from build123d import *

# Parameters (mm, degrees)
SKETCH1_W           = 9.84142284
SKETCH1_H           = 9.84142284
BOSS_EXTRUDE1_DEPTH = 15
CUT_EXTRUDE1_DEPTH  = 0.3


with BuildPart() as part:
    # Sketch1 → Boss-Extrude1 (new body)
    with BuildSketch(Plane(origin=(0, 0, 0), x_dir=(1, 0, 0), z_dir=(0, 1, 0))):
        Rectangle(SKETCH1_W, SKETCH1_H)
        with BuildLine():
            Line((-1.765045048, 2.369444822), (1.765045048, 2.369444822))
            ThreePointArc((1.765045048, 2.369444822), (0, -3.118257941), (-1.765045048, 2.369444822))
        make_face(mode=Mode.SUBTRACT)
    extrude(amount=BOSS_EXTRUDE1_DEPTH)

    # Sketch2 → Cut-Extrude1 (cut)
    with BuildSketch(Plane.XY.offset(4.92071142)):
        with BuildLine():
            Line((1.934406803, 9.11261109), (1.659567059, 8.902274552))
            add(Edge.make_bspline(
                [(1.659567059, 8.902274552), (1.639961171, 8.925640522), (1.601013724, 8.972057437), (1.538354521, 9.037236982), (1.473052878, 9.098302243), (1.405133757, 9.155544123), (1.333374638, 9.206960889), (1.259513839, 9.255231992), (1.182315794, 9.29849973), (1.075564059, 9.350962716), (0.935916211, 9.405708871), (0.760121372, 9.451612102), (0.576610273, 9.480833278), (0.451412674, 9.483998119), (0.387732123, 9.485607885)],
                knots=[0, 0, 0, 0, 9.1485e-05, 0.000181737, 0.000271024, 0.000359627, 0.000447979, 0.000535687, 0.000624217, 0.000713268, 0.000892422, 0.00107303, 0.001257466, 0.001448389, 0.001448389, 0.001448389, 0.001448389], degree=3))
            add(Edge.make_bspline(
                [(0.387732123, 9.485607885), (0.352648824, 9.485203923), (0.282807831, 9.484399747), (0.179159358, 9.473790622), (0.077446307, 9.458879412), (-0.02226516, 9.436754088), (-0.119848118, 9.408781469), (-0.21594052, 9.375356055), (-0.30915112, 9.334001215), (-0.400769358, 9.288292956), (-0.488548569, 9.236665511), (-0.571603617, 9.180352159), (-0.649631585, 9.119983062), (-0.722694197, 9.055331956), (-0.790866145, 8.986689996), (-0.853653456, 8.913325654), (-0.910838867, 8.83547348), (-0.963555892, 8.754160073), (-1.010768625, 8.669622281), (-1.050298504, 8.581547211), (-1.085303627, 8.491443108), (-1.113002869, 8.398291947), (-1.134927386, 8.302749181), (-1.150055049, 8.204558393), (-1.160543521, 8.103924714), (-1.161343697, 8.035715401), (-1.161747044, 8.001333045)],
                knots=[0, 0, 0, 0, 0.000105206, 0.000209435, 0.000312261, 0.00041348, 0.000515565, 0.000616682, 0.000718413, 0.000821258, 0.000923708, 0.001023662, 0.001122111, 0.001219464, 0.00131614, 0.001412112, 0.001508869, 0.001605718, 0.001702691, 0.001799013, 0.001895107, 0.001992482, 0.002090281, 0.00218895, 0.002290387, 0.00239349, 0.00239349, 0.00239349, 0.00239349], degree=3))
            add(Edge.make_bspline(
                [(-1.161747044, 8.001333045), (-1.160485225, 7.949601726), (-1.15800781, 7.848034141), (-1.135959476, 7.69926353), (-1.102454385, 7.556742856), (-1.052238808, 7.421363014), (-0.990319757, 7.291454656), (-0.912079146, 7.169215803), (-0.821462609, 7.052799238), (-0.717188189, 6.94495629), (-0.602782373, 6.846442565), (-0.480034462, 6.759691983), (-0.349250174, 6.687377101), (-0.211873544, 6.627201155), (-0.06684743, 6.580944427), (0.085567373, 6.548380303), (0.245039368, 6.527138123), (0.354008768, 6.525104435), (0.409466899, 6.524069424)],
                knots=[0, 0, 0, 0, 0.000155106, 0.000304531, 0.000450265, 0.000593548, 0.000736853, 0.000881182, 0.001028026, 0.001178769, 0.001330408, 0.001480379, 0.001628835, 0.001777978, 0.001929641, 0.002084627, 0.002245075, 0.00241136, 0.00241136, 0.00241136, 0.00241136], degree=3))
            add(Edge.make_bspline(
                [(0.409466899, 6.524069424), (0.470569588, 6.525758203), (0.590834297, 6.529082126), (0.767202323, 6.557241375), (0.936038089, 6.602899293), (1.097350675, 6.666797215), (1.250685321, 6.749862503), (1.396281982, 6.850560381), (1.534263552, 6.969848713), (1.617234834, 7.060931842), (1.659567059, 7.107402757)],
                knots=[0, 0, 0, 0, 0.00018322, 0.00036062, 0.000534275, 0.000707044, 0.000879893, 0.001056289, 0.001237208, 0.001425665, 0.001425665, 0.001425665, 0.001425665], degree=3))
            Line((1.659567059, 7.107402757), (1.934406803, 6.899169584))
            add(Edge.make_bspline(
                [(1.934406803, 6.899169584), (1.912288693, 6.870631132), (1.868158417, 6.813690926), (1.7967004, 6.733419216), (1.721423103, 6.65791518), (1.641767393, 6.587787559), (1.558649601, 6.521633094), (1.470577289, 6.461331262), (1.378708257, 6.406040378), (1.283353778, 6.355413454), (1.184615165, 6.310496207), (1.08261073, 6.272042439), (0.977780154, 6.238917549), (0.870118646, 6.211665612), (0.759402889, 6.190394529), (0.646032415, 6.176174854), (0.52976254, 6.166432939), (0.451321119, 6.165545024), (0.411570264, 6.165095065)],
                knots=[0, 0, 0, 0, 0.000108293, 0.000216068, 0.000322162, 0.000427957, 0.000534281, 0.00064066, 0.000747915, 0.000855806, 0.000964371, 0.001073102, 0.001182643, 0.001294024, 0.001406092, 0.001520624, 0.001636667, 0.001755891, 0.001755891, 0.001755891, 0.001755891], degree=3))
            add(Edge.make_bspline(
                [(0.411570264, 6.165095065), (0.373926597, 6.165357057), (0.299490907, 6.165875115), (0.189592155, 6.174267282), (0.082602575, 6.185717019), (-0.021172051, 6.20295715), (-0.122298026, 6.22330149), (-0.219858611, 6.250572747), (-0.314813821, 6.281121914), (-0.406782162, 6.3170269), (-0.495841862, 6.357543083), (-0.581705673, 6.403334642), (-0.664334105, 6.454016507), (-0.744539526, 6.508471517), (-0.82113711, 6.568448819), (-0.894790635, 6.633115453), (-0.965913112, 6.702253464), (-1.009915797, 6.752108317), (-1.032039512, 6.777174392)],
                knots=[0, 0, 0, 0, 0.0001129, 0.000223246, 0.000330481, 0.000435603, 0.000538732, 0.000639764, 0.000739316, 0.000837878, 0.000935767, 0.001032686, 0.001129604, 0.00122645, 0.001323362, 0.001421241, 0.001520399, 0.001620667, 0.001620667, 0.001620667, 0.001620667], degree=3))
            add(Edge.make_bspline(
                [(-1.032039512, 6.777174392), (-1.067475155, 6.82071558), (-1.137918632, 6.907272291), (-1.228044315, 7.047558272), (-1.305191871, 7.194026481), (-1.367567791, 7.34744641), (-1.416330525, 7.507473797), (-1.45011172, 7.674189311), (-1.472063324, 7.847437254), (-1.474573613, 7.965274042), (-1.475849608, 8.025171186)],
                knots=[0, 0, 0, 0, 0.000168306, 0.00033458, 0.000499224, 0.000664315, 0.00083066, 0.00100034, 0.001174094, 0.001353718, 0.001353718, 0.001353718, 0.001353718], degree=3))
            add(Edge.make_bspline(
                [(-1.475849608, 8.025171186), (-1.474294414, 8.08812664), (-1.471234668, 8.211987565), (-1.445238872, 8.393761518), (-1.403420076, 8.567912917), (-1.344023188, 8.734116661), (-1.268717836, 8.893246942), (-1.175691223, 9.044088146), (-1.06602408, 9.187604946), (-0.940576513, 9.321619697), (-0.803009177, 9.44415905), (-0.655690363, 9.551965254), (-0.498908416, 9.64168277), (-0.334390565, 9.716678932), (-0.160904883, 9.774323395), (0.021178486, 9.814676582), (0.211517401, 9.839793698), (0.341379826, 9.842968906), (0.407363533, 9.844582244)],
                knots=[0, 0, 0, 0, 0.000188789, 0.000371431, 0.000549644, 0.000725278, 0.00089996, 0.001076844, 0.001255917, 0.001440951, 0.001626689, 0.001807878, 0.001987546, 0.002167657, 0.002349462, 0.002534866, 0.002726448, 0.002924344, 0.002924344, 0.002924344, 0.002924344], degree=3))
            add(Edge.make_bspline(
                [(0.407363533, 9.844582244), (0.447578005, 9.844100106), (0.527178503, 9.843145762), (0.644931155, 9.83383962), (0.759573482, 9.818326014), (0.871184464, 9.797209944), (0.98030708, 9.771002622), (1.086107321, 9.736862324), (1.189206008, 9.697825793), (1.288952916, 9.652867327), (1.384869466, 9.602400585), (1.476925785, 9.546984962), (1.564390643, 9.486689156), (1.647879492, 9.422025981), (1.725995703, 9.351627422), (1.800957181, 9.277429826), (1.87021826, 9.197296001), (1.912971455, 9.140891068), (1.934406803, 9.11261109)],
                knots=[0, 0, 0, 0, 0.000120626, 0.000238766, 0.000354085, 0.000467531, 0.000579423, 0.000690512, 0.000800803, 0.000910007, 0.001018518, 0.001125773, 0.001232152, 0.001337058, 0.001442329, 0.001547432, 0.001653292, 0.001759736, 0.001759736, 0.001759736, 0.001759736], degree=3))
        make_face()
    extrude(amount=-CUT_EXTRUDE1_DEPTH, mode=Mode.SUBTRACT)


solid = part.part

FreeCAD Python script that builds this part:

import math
import FreeCAD as App
import Part
import Sketcher

V = App.Vector
Q = App.Units.Quantity


def add_polygon(sketch, points):
    """Adds a closed chain of lines whose ends are joined by coincident constraints."""
    first, n = sketch.GeometryCount, len(points)
    for a, b in zip(points, points[1:] + points[:1]):
        sketch.addGeometry(Part.LineSegment(App.Vector(*a, 0), App.Vector(*b, 0)), False)
    for i in range(n):
        sketch.addConstraint(Sketcher.Constraint("Coincident", first + i, 2, first + (i + 1) % n, 1))

doc = App.newDocument("Part")
body = doc.addObject("PartDesign::Body", "Body")

# Sketch on XZ plane
sketch1 = body.newObject("Sketcher::SketchObject", "Sketch")
sketch1.AttachmentSupport = (doc.getObject("XZ_Plane"), [""])
sketch1.MapMode = "FlatFace"
add_polygon(sketch1, [(-4.9, -4.9), (-4.9, 4.9), (4.9, 4.9), (4.9, -4.9)])  # lines 0-3
sketch1.addGeometry(Part.ArcOfCircle(Part.Circle(V(0, 0.1, 0), V(0, 0, 1), 3), math.radians(-54), math.radians(234)), False)  # 4
sketch1.addGeometry(Part.LineSegment(V(-1.8, -2.4, 0), V(1.8, -2.4, 0)), False)  # 5
sketch1.addConstraint([
    Sketcher.Constraint("Coincident", 4, 1, 5, 2),
    Sketcher.Constraint("Coincident", 5, 1, 4, 2),
    Sketcher.Constraint("Vertical", 0),
    Sketcher.Constraint("Horizontal", 1),
    Sketcher.Constraint("Vertical", 2),
    Sketcher.Constraint("Horizontal", 3),
    Sketcher.Constraint("Horizontal", 5),
    Sketcher.Constraint("Symmetric", 0, 2, 2, 2, -1, 1),
    Sketcher.Constraint("PointOnObject", 4, 3, -2),
    Sketcher.Constraint("Equal", 3, 0),
    Sketcher.Constraint("DistanceY", 4, 1, 4, 3, Q("2.46 mm")),
    Sketcher.Constraint("Radius", 4, Q("3.027703 mm")),
    Sketcher.Constraint("DistanceX", 1, 1, 1, 2, Q("9.841423 mm")),
    Sketcher.Constraint("DistanceY", -1, 1, 4, 3, Q("0.090555 mm")),
])
pad1 = body.newObject("PartDesign::Pad", "Pad")
pad1.Profile = sketch1
pad1.Length = 15
pad1.Reversed = True

# Sketch on XY plane
sketch2 = body.newObject("Sketcher::SketchObject", "Sketch001")
sketch2.AttachmentSupport = (doc.getObject("XY_Plane"), [""])
sketch2.MapMode = "FlatFace"
sketch2.AttachmentOffset = App.Placement(V(0, 0, 4.920711), App.Rotation())
sketch2.addGeometry([
    Part.LineSegment(V(1.659567, 8.902275, 0), V(1.934407, 9.112611, 0)),  # 0
    Part.BSplineCurve([V(0.407364, 9.844582, 0), V(0.447578, 9.8441, 0), V(0.527179, 9.843146, 0), V(0.644931, 9.83384, 0), V(0.759573, 9.818326, 0), V(0.871184, 9.79721, 0), V(0.980307, 9.771003, 0), V(1.086107, 9.736862, 0), V(1.189206, 9.697826, 0), V(1.288953, 9.652867, 0), V(1.384869, 9.602401, 0), V(1.476926, 9.546985, 0), V(1.564391, 9.486689, 0), V(1.647879, 9.422026, 0), V(1.725996, 9.351627, 0), V(1.800957, 9.27743, 0), V(1.870218, 9.197296, 0), V(1.912971, 9.140891, 0), V(1.934407, 9.112611, 0)], [4, 1, 1, 1, 1, 1, 1, 1, 1, 1, 1, 1, 1, 1, 1, 1, 4], [0, 0.000120626, 0.000238766, 0.000354085, 0.000467531, 0.000579423, 0.000690512, 0.000800803, 0.000910007, 0.001018518, 0.001125773, 0.001232152, 0.001337058, 0.001442329, 0.001547432, 0.001653292, 0.001759736], False, 3, [1, 1, 1, 1, 1, 1, 1, 1, 1, 1, 1, 1, 1, 1, 1, 1, 1, 1, 1], False),  # 1
    Part.BSplineCurve([V(-1.47585, 8.025171, 0), V(-1.474294, 8.088127, 0), V(-1.471235, 8.211988, 0), V(-1.445239, 8.393762, 0), V(-1.40342, 8.567913, 0), V(-1.344023, 8.734117, 0), V(-1.268718, 8.893247, 0), V(-1.175691, 9.044088, 0), V(-1.066024, 9.187605, 0), V(-0.940577, 9.32162, 0), V(-0.803009, 9.444159, 0), V(-0.65569, 9.551965, 0), V(-0.498908, 9.641683, 0), V(-0.334391, 9.716679, 0), V(-0.160905, 9.774323, 0), V(0.021178, 9.814677, 0), V(0.211517, 9.839794, 0), V(0.34138, 9.842969, 0), V(0.407364, 9.844582, 0)], [4, 1, 1, 1, 1, 1, 1, 1, 1, 1, 1, 1, 1, 1, 1, 1, 4], [0, 0.000188789, 0.000371431, 0.000549644, 0.000725278, 0.00089996, 0.001076844, 0.001255917, 0.001440951, 0.001626689, 0.001807878, 0.001987546, 0.002167657, 0.002349462, 0.002534866, 0.002726448, 0.002924344], False, 3, [1, 1, 1, 1, 1, 1, 1, 1, 1, 1, 1, 1, 1, 1, 1, 1, 1, 1, 1], False),  # 2
    Part.BSplineCurve([V(-1.03204, 6.777174, 0), V(-1.067475, 6.820716, 0), V(-1.137919, 6.907272, 0), V(-1.228044, 7.047558, 0), V(-1.305192, 7.194026, 0), V(-1.367568, 7.347446, 0), V(-1.416331, 7.507474, 0), V(-1.450112, 7.674189, 0), V(-1.472063, 7.847437, 0), V(-1.474574, 7.965274, 0), V(-1.47585, 8.025171, 0)], [4, 1, 1, 1, 1, 1, 1, 1, 4], [0, 0.000168306, 0.00033458, 0.000499224, 0.000664315, 0.00083066, 0.00100034, 0.001174094, 0.001353718], False, 3, [1, 1, 1, 1, 1, 1, 1, 1, 1, 1, 1], False),  # 3
    Part.BSplineCurve([V(0.41157, 6.165095, 0), V(0.373927, 6.165357, 0), V(0.299491, 6.165875, 0), V(0.189592, 6.174267, 0), V(0.082603, 6.185717, 0), V(-0.021172, 6.202957, 0), V(-0.122298, 6.223301, 0), V(-0.219859, 6.250573, 0), V(-0.314814, 6.281122, 0), V(-0.406782, 6.317027, 0), V(-0.495842, 6.357543, 0), V(-0.581706, 6.403335, 0), V(-0.664334, 6.454017, 0), V(-0.74454, 6.508472, 0), V(-0.821137, 6.568449, 0), V(-0.894791, 6.633115, 0), V(-0.965913, 6.702253, 0), V(-1.009916, 6.752108, 0), V(-1.03204, 6.777174, 0)], [4, 1, 1, 1, 1, 1, 1, 1, 1, 1, 1, 1, 1, 1, 1, 1, 4], [0, 0.0001129, 0.000223246, 0.000330481, 0.000435603, 0.000538732, 0.000639764, 0.000739316, 0.000837878, 0.000935767, 0.001032686, 0.001129604, 0.00122645, 0.001323362, 0.001421241, 0.001520399, 0.001620667], False, 3, [1, 1, 1, 1, 1, 1, 1, 1, 1, 1, 1, 1, 1, 1, 1, 1, 1, 1, 1], False),  # 4
    Part.BSplineCurve([V(1.934407, 6.89917, 0), V(1.912289, 6.870631, 0), V(1.868158, 6.813691, 0), V(1.7967, 6.733419, 0), V(1.721423, 6.657915, 0), V(1.641767, 6.587788, 0), V(1.55865, 6.521633, 0), V(1.470577, 6.461331, 0), V(1.378708, 6.40604, 0), V(1.283354, 6.355413, 0), V(1.184615, 6.310496, 0), V(1.082611, 6.272042, 0), V(0.97778, 6.238918, 0), V(0.870119, 6.211666, 0), V(0.759403, 6.190395, 0), V(0.646032, 6.176175, 0), V(0.529763, 6.166433, 0), V(0.451321, 6.165545, 0), V(0.41157, 6.165095, 0)], [4, 1, 1, 1, 1, 1, 1, 1, 1, 1, 1, 1, 1, 1, 1, 1, 4], [0, 0.000108293, 0.000216068, 0.000322162, 0.000427957, 0.000534281, 0.00064066, 0.000747915, 0.000855806, 0.000964371, 0.001073102, 0.001182643, 0.001294024, 0.001406092, 0.001520624, 0.001636667, 0.001755891], False, 3, [1, 1, 1, 1, 1, 1, 1, 1, 1, 1, 1, 1, 1, 1, 1, 1, 1, 1, 1], False),  # 5
    Part.LineSegment(V(1.934407, 6.89917, 0), V(1.659567, 7.107403, 0)),  # 6
    Part.BSplineCurve([V(0.409467, 6.524069, 0), V(0.47057, 6.525758, 0), V(0.590834, 6.529082, 0), V(0.767202, 6.557241, 0), V(0.936038, 6.602899, 0), V(1.097351, 6.666797, 0), V(1.250685, 6.749863, 0), V(1.396282, 6.85056, 0), V(1.534264, 6.969849, 0), V(1.617235, 7.060932, 0), V(1.659567, 7.107403, 0)], [4, 1, 1, 1, 1, 1, 1, 1, 4], [0, 0.00018322, 0.00036062, 0.000534275, 0.000707044, 0.000879893, 0.001056289, 0.001237208, 0.001425665], False, 3, [1, 1, 1, 1, 1, 1, 1, 1, 1, 1, 1], False),  # 7
    Part.BSplineCurve([V(-1.161747, 8.001333, 0), V(-1.160485, 7.949602, 0), V(-1.158008, 7.848034, 0), V(-1.135959, 7.699264, 0), V(-1.102454, 7.556743, 0), V(-1.052239, 7.421363, 0), V(-0.99032, 7.291455, 0), V(-0.912079, 7.169216, 0), V(-0.821463, 7.052799, 0), V(-0.717188, 6.944956, 0), V(-0.602782, 6.846443, 0), V(-0.480034, 6.759692, 0), V(-0.34925, 6.687377, 0), V(-0.211874, 6.627201, 0), V(-0.066847, 6.580944, 0), V(0.085567, 6.54838, 0), V(0.245039, 6.527138, 0), V(0.354009, 6.525104, 0), V(0.409467, 6.524069, 0)], [4, 1, 1, 1, 1, 1, 1, 1, 1, 1, 1, 1, 1, 1, 1, 1, 4], [0, 0.000155106, 0.000304531, 0.000450265, 0.000593548, 0.000736853, 0.000881182, 0.001028026, 0.001178769, 0.001330408, 0.001480379, 0.001628835, 0.001777978, 0.001929641, 0.002084627, 0.002245075, 0.00241136], False, 3, [1, 1, 1, 1, 1, 1, 1, 1, 1, 1, 1, 1, 1, 1, 1, 1, 1, 1, 1], False),  # 8
    Part.BSplineCurve([V(0.387732, 9.485608, 0), V(0.352649, 9.485204, 0), V(0.282808, 9.4844, 0), V(0.179159, 9.473791, 0), V(0.077446, 9.458879, 0), V(-0.022265, 9.436754, 0), V(-0.119848, 9.408781, 0), V(-0.215941, 9.375356, 0), V(-0.309151, 9.334001, 0), V(-0.400769, 9.288293, 0), V(-0.488549, 9.236666, 0), V(-0.571604, 9.180352, 0), V(-0.649632, 9.119983, 0), V(-0.722694, 9.055332, 0), V(-0.790866, 8.98669, 0), V(-0.853653, 8.913326, 0), V(-0.910839, 8.835473, 0), V(-0.963556, 8.75416, 0), V(-1.010769, 8.669622, 0), V(-1.050299, 8.581547, 0), V(-1.085304, 8.491443, 0), V(-1.113003, 8.398292, 0), V(-1.134927, 8.302749, 0), V(-1.150055, 8.204558, 0), V(-1.160544, 8.103925, 0), V(-1.161344, 8.035715, 0), V(-1.161747, 8.001333, 0)], [4, 1, 1, 1, 1, 1, 1, 1, 1, 1, 1, 1, 1, 1, 1, 1, 1, 1, 1, 1, 1, 1, 1, 1, 4], [0, 0.000105206, 0.000209435, 0.000312261, 0.00041348, 0.000515565, 0.000616682, 0.000718413, 0.000821258, 0.000923708, 0.001023662, 0.001122111, 0.001219464, 0.00131614, 0.001412112, 0.001508869, 0.001605718, 0.001702691, 0.001799013, 0.001895107, 0.001992482, 0.002090281, 0.00218895, 0.002290387, 0.00239349], False, 3, [1, 1, 1, 1, 1, 1, 1, 1, 1, 1, 1, 1, 1, 1, 1, 1, 1, 1, 1, 1, 1, 1, 1, 1, 1, 1, 1], False),  # 9
    Part.BSplineCurve([V(1.659567, 8.902275, 0), V(1.639961, 8.925641, 0), V(1.601014, 8.972057, 0), V(1.538355, 9.037237, 0), V(1.473053, 9.098302, 0), V(1.405134, 9.155544, 0), V(1.333375, 9.206961, 0), V(1.259514, 9.255232, 0), V(1.182316, 9.2985, 0), V(1.075564, 9.350963, 0), V(0.935916, 9.405709, 0), V(0.760121, 9.451612, 0), V(0.57661, 9.480833, 0), V(0.451413, 9.483998, 0), V(0.387732, 9.485608, 0)], [4, 1, 1, 1, 1, 1, 1, 1, 1, 1, 1, 1, 4], [0, 0.000091485, 0.000181737, 0.000271024, 0.000359627, 0.000447979, 0.000535687, 0.000624217, 0.000713268, 0.000892422, 0.00107303, 0.001257466, 0.001448389], False, 3, [1, 1, 1, 1, 1, 1, 1, 1, 1, 1, 1, 1, 1, 1, 1], False),  # 10
], False)
sketch2.addConstraint([
    Sketcher.Constraint("Block", 1),
    Sketcher.Constraint("Block", 2),
    Sketcher.Constraint("Block", 3),
    Sketcher.Constraint("Block", 4),
    Sketcher.Constraint("Block", 5),
    Sketcher.Constraint("Block", 7),
    Sketcher.Constraint("Block", 8),
    Sketcher.Constraint("Block", 9),
    Sketcher.Constraint("Block", 10),
    Sketcher.Constraint("Coincident", 0, 2, 1, 2),
    Sketcher.Constraint("Coincident", 5, 1, 6, 1),
    Sketcher.Constraint("Coincident", 6, 2, 7, 2),
    Sketcher.Constraint("Coincident", 10, 1, 0, 1),
])
pocket1 = body.newObject("PartDesign::Pocket", "Pocket")
pocket1.Profile = sketch2
pocket1.Length = 0.3

doc.recompute()
